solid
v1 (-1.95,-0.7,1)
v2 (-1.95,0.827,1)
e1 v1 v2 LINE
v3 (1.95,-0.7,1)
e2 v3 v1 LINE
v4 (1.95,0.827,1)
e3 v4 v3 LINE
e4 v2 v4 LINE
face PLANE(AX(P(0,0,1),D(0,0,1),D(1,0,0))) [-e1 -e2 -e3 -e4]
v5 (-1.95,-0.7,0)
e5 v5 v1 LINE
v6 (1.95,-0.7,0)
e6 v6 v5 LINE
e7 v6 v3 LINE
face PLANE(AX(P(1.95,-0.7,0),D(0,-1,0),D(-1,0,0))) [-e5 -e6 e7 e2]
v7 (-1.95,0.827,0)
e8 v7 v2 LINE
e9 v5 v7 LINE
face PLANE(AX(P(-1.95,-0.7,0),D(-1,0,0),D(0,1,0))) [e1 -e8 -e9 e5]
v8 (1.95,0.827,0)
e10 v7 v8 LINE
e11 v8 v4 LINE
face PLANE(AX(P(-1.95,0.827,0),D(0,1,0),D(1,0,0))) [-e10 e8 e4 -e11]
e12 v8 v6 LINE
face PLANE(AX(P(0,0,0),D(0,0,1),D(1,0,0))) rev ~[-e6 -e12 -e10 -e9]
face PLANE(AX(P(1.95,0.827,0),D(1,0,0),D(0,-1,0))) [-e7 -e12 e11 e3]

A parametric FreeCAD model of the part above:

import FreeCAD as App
import Part
import Sketcher

V = App.Vector
Q = App.Units.Quantity

doc = App.newDocument("Part")
params = doc.addObject("Spreadsheet::Sheet", "Params")
for row, (alias, value) in enumerate([
    ("sketch1_width", "3.9 mm"),
    ("pad1_length", "1 mm"),
], start=1):
    params.set(f"A{row}", alias)
    params.set(f"B{row}", "=" + value)
    params.setAlias(f"B{row}", alias)

body = doc.addObject("PartDesign::Body", "Body")

# Sketch on XY plane
sketch1 = body.newObject("Sketcher::SketchObject", "Sketch")
sketch1.AttachmentSupport = (doc.getObject("XY_Plane"), [""])
sketch1.MapMode = "FlatFace"
sketch1.addGeometry([
    Part.LineSegment(V(1.9, 0.8, 0), V(-1.9, 0.8, 0)),
    Part.LineSegment(V(-1.9, 0.8, 0), V(-1.9, -0.7, 0)),
    Part.LineSegment(V(-1.9, -0.7, 0), V(1.9, -0.7, 0)),
    Part.LineSegment(V(1.9, -0.7, 0), V(1.9, 0.8, 0)),
], False)
sketch1.addConstraint([
    Sketcher.Constraint("Coincident", 0, 2, 1, 1),
    Sketcher.Constraint("Coincident", 1, 2, 2, 1),
    Sketcher.Constraint("Coincident", 2, 2, 3, 1),
    Sketcher.Constraint("Coincident", 3, 2, 0, 1),
    Sketcher.Constraint("Horizontal", 0),
    Sketcher.Constraint("Vertical", 1),
    Sketcher.Constraint("Horizontal", 2),
    Sketcher.Constraint("Vertical", 3),
    Sketcher.Constraint("DistanceX", 0, 2, 0, 1, Q("3.9 mm")),
    Sketcher.Constraint("DistanceY", 1, 2, -1, 1, Q("0.7 mm")),
    Sketcher.Constraint("DistanceY", 1, 2, 1, 1, Q("1.527 mm")),
    Sketcher.Constraint("DistanceX", 0, 2, -1, 1, Q("1.95 mm")),
])
sketch1.setExpression("Constraints[8]", "Params.sketch1_width")
pad1 = body.newObject("PartDesign::Pad", "Pad")
pad1.Profile = sketch1
pad1.setExpression("Length", "Params.pad1_length")

doc.recompute()
